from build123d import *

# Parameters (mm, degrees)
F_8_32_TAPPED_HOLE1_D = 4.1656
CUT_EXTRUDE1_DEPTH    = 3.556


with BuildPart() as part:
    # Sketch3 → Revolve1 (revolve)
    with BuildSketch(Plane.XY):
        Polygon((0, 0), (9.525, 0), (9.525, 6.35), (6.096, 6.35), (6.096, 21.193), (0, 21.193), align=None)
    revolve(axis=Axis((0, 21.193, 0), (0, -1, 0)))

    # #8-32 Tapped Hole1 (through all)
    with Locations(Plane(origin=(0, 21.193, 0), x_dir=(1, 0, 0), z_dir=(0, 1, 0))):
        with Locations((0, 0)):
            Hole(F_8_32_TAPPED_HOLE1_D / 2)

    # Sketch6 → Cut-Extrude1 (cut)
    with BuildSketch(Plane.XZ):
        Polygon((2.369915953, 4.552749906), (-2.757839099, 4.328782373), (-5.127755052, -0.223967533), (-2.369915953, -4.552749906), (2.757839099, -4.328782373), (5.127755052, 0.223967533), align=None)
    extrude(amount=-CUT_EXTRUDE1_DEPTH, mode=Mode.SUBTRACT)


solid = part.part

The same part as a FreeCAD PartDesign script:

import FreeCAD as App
import Part
import Sketcher

V = App.Vector
Q = App.Units.Quantity


def add_polygon(sketch, points):
    """Adds a closed chain of lines whose ends are joined by coincident constraints."""
    first, n = sketch.GeometryCount, len(points)
    for a, b in zip(points, points[1:] + points[:1]):
        sketch.addGeometry(Part.LineSegment(App.Vector(*a, 0), App.Vector(*b, 0)), False)
    for i in range(n):
        sketch.addConstraint(Sketcher.Constraint("Coincident", first + i, 2, first + (i + 1) % n, 1))

doc = App.newDocument("Part")
params = doc.addObject("Spreadsheet::Sheet", "Params")
for row, (alias, value) in enumerate([
    ("sketch1_width", "0.24 in"),
    ("sketch1_height", "0.25 in"),
    ("sketch1_width2", "0.375 in"),
    ("revolution_angle", "360 deg"),
    ("sketch2_diameter", "0.164 in"),
    ("hole_diameter", "0.164 in"),
    ("pocket1_length", "0.14 in"),
], start=1):
    params.set(f"A{row}", alias)
    params.set(f"B{row}", "=" + value)
    params.setAlias(f"B{row}", alias)

body = doc.addObject("PartDesign::Body", "Body")

# Sketch on XY plane
sketch1 = body.newObject("Sketcher::SketchObject", "Sketch")
sketch1.AttachmentSupport = (doc.getObject("XY_Plane"), [""])
sketch1.MapMode = "FlatFace"
add_polygon(sketch1, [(0, 0), (9.5, 0), (9.5, 6.3), (6.1, 6.3), (6.1, 21.2), (0, 21.2)])  # lines 0-5
sketch1.addConstraint([
    Sketcher.Constraint("Horizontal", 0),
    Sketcher.Constraint("Vertical", 1),
    Sketcher.Constraint("Horizontal", 2),
    Sketcher.Constraint("Vertical", 3),
    Sketcher.Constraint("Horizontal", 4),
    Sketcher.Constraint("Vertical", 5),
    Sketcher.Constraint("Coincident", 5, 2, -1, 1),
    Sketcher.Constraint("DistanceX", 4, 2, 4, 1, Q("0.24 in")),
    Sketcher.Constraint("DistanceY", 1, 1, 1, 2, Q("0.25 in")),
    Sketcher.Constraint("DistanceX", 0, 1, 0, 2, Q("0.375 in")),
    Sketcher.Constraint("DistanceY", 3, 1, 3, 2, Q("14.843 mm")),
])
sketch1.setExpression("Constraints[13]", "Params.sketch1_width")
sketch1.setExpression("Constraints[14]", "Params.sketch1_height")
sketch1.setExpression("Constraints[15]", "Params.sketch1_width2")
revolution = body.newObject("PartDesign::Revolution", "Revolution")
revolution.Profile = sketch1
revolution.ReferenceAxis = (sketch1, ["V_Axis"])
revolution.setExpression("Angle", "Params.revolution_angle")

# Sketch on XZ plane
sketch2 = body.newObject("Sketcher::SketchObject", "Sketch001")
sketch2.AttachmentSupport = (doc.getObject("XZ_Plane"), [""])
sketch2.MapMode = "FlatFace"
sketch2.AttachmentOffset = App.Placement(V(0, 0, -21.193), App.Rotation())
sketch2.addGeometry(Part.Circle(V(0, 0, 0), V(0, 0, 1), 2.1), False)
sketch2.addConstraint([
    Sketcher.Constraint("Coincident", 0, 3, -1, 1),
    Sketcher.Constraint("Diameter", 0, Q("0.164 in")),
])
sketch2.setExpression("Constraints[1]", "Params.sketch2_diameter")
doc.recompute()
hole = body.newObject("PartDesign::Hole", "Hole")
hole.Profile = sketch2
hole.ThreadType = "None"
hole.setExpression("Diameter", "Params.hole_diameter")
hole.DepthType = "ThroughAll"
hole.Reversed = True

# Sketch on XZ plane
sketch3 = body.newObject("Sketcher::SketchObject", "Sketch002")
sketch3.AttachmentSupport = (doc.getObject("XZ_Plane"), [""])
sketch3.MapMode = "FlatFace"
add_polygon(sketch3, [(2, 5), (-3, 4), (-5, 0), (-2, -5), (3, -4), (5, 0)])  # lines 0-5
sketch3.addConstraint([
    Sketcher.Constraint("Symmetric", 0, 2, 3, 2, -1, 1),
    Sketcher.Constraint("Symmetric", 1, 2, 4, 2, -1, 1),
    Sketcher.Constraint("Symmetric", 2, 2, 5, 2, -1, 1),
    Sketcher.Constraint("Equal", 0, 1),
    Sketcher.Constraint("Equal", 1, 2),
    Sketcher.Constraint("DistanceY", 2, 2, 5, 2, Q("9.1055 mm")),
    Sketcher.Constraint("DistanceX", 0, 2, -1, 1, Q("2.757839 mm")),
    Sketcher.Constraint("DistanceY", 1, 2, 0, 2, Q("4.55275 mm")),
    Sketcher.Constraint("DistanceX", 1, 2, 2, 2, Q("2.757839 mm")),
])
pocket1 = body.newObject("PartDesign::Pocket", "Pocket")
pocket1.Profile = sketch3
pocket1.setExpression("Length", "Params.pocket1_length")

doc.recompute()
